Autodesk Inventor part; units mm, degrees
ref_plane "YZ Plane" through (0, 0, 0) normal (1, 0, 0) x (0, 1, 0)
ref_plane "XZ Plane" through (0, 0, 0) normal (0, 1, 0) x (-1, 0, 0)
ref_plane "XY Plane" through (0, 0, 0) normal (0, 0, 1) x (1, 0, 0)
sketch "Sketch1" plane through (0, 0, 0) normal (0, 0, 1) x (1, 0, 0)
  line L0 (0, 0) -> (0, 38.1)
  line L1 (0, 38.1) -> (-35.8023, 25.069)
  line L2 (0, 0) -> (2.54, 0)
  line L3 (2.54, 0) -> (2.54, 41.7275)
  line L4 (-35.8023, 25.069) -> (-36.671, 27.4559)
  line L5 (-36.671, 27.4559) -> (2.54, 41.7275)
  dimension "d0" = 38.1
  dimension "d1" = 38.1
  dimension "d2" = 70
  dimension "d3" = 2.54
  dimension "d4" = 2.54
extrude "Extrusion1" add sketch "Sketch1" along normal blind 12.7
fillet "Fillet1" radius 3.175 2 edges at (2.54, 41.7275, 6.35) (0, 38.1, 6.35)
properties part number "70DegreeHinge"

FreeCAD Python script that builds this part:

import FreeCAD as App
import Part
import Sketcher
Q = App.Units.Quantity


def edges_at(feature, points):
    """Names of the edges that pass closest to the given points."""
    edges = feature.Shape.Edges
    near = lambda p: min(range(len(edges)), key=lambda i: edges[i].distToShape(Part.Vertex(*p))[0])
    return sorted({f"Edge{near(p) + 1}" for p in points})

doc = App.newDocument("Part")
body = doc.addObject("PartDesign::Body", "Body")

sketch1 = body.newObject("Sketcher::SketchObject", "Sketch")
sketch1.AttachmentSupport = (doc.getObject("XY_Plane"), [""])
sketch1.MapMode = "FlatFace"
sketch1.addGeometry([
    Part.LineSegment(App.Vector(0, 38.1, 0), App.Vector(0, 0, 0)),
    Part.LineSegment(App.Vector(0, 0, 0), App.Vector(2.5, 0, 0)),
    Part.LineSegment(App.Vector(2.5, 0, 0), App.Vector(2.5, 41.7, 0)),
    Part.LineSegment(App.Vector(2.5, 41.7, 0), App.Vector(-36.7, 27.5, 0)),
    Part.LineSegment(App.Vector(-36.7, 27.5, 0), App.Vector(-35.8, 25.1, 0)),
    Part.LineSegment(App.Vector(-35.8, 25.1, 0), App.Vector(0, 38.1, 0)),
], False)
sketch1.addConstraint([
    Sketcher.Constraint("Coincident", 0, 2, 1, 1),
    Sketcher.Constraint("Coincident", 1, 2, 2, 1),
    Sketcher.Constraint("Coincident", 2, 2, 3, 1),
    Sketcher.Constraint("Coincident", 3, 2, 4, 1),
    Sketcher.Constraint("Coincident", 4, 2, 5, 1),
    Sketcher.Constraint("Coincident", 5, 2, 0, 1),
    Sketcher.Constraint("Vertical", 0),
    Sketcher.Constraint("Horizontal", 1),
    Sketcher.Constraint("Vertical", 2),
    Sketcher.Constraint("Coincident", 0, 2, -1, 1),
    Sketcher.Constraint("Perpendicular", 3, 4),
    Sketcher.Constraint("Perpendicular", 4, 5),
    Sketcher.Constraint("DistanceX", 1, 1, 1, 2, Q("0.1 in")),
    Sketcher.Constraint("DistanceY", 0, 2, 0, 1, Q("1.5 in")),
    Sketcher.Constraint("Distance", 4, Q("0.1 in")),
    Sketcher.Constraint("Distance", 5, Q("1.5 in")),
    Sketcher.Constraint("Angle", 3, Q("-160 deg")),
])
pad1 = body.newObject("PartDesign::Pad", "Pad")
pad1.Profile = sketch1
pad1.Length = Q("0.5 in")
doc.recompute()

fillet = body.newObject("PartDesign::Fillet", "Fillet")
fillet.Base = (pad1, edges_at(pad1, [(2.54, 41.727, 6.35), (0, 38.1, 6.35)]))
fillet.Radius = Q("0.125 in")

doc.recompute()
